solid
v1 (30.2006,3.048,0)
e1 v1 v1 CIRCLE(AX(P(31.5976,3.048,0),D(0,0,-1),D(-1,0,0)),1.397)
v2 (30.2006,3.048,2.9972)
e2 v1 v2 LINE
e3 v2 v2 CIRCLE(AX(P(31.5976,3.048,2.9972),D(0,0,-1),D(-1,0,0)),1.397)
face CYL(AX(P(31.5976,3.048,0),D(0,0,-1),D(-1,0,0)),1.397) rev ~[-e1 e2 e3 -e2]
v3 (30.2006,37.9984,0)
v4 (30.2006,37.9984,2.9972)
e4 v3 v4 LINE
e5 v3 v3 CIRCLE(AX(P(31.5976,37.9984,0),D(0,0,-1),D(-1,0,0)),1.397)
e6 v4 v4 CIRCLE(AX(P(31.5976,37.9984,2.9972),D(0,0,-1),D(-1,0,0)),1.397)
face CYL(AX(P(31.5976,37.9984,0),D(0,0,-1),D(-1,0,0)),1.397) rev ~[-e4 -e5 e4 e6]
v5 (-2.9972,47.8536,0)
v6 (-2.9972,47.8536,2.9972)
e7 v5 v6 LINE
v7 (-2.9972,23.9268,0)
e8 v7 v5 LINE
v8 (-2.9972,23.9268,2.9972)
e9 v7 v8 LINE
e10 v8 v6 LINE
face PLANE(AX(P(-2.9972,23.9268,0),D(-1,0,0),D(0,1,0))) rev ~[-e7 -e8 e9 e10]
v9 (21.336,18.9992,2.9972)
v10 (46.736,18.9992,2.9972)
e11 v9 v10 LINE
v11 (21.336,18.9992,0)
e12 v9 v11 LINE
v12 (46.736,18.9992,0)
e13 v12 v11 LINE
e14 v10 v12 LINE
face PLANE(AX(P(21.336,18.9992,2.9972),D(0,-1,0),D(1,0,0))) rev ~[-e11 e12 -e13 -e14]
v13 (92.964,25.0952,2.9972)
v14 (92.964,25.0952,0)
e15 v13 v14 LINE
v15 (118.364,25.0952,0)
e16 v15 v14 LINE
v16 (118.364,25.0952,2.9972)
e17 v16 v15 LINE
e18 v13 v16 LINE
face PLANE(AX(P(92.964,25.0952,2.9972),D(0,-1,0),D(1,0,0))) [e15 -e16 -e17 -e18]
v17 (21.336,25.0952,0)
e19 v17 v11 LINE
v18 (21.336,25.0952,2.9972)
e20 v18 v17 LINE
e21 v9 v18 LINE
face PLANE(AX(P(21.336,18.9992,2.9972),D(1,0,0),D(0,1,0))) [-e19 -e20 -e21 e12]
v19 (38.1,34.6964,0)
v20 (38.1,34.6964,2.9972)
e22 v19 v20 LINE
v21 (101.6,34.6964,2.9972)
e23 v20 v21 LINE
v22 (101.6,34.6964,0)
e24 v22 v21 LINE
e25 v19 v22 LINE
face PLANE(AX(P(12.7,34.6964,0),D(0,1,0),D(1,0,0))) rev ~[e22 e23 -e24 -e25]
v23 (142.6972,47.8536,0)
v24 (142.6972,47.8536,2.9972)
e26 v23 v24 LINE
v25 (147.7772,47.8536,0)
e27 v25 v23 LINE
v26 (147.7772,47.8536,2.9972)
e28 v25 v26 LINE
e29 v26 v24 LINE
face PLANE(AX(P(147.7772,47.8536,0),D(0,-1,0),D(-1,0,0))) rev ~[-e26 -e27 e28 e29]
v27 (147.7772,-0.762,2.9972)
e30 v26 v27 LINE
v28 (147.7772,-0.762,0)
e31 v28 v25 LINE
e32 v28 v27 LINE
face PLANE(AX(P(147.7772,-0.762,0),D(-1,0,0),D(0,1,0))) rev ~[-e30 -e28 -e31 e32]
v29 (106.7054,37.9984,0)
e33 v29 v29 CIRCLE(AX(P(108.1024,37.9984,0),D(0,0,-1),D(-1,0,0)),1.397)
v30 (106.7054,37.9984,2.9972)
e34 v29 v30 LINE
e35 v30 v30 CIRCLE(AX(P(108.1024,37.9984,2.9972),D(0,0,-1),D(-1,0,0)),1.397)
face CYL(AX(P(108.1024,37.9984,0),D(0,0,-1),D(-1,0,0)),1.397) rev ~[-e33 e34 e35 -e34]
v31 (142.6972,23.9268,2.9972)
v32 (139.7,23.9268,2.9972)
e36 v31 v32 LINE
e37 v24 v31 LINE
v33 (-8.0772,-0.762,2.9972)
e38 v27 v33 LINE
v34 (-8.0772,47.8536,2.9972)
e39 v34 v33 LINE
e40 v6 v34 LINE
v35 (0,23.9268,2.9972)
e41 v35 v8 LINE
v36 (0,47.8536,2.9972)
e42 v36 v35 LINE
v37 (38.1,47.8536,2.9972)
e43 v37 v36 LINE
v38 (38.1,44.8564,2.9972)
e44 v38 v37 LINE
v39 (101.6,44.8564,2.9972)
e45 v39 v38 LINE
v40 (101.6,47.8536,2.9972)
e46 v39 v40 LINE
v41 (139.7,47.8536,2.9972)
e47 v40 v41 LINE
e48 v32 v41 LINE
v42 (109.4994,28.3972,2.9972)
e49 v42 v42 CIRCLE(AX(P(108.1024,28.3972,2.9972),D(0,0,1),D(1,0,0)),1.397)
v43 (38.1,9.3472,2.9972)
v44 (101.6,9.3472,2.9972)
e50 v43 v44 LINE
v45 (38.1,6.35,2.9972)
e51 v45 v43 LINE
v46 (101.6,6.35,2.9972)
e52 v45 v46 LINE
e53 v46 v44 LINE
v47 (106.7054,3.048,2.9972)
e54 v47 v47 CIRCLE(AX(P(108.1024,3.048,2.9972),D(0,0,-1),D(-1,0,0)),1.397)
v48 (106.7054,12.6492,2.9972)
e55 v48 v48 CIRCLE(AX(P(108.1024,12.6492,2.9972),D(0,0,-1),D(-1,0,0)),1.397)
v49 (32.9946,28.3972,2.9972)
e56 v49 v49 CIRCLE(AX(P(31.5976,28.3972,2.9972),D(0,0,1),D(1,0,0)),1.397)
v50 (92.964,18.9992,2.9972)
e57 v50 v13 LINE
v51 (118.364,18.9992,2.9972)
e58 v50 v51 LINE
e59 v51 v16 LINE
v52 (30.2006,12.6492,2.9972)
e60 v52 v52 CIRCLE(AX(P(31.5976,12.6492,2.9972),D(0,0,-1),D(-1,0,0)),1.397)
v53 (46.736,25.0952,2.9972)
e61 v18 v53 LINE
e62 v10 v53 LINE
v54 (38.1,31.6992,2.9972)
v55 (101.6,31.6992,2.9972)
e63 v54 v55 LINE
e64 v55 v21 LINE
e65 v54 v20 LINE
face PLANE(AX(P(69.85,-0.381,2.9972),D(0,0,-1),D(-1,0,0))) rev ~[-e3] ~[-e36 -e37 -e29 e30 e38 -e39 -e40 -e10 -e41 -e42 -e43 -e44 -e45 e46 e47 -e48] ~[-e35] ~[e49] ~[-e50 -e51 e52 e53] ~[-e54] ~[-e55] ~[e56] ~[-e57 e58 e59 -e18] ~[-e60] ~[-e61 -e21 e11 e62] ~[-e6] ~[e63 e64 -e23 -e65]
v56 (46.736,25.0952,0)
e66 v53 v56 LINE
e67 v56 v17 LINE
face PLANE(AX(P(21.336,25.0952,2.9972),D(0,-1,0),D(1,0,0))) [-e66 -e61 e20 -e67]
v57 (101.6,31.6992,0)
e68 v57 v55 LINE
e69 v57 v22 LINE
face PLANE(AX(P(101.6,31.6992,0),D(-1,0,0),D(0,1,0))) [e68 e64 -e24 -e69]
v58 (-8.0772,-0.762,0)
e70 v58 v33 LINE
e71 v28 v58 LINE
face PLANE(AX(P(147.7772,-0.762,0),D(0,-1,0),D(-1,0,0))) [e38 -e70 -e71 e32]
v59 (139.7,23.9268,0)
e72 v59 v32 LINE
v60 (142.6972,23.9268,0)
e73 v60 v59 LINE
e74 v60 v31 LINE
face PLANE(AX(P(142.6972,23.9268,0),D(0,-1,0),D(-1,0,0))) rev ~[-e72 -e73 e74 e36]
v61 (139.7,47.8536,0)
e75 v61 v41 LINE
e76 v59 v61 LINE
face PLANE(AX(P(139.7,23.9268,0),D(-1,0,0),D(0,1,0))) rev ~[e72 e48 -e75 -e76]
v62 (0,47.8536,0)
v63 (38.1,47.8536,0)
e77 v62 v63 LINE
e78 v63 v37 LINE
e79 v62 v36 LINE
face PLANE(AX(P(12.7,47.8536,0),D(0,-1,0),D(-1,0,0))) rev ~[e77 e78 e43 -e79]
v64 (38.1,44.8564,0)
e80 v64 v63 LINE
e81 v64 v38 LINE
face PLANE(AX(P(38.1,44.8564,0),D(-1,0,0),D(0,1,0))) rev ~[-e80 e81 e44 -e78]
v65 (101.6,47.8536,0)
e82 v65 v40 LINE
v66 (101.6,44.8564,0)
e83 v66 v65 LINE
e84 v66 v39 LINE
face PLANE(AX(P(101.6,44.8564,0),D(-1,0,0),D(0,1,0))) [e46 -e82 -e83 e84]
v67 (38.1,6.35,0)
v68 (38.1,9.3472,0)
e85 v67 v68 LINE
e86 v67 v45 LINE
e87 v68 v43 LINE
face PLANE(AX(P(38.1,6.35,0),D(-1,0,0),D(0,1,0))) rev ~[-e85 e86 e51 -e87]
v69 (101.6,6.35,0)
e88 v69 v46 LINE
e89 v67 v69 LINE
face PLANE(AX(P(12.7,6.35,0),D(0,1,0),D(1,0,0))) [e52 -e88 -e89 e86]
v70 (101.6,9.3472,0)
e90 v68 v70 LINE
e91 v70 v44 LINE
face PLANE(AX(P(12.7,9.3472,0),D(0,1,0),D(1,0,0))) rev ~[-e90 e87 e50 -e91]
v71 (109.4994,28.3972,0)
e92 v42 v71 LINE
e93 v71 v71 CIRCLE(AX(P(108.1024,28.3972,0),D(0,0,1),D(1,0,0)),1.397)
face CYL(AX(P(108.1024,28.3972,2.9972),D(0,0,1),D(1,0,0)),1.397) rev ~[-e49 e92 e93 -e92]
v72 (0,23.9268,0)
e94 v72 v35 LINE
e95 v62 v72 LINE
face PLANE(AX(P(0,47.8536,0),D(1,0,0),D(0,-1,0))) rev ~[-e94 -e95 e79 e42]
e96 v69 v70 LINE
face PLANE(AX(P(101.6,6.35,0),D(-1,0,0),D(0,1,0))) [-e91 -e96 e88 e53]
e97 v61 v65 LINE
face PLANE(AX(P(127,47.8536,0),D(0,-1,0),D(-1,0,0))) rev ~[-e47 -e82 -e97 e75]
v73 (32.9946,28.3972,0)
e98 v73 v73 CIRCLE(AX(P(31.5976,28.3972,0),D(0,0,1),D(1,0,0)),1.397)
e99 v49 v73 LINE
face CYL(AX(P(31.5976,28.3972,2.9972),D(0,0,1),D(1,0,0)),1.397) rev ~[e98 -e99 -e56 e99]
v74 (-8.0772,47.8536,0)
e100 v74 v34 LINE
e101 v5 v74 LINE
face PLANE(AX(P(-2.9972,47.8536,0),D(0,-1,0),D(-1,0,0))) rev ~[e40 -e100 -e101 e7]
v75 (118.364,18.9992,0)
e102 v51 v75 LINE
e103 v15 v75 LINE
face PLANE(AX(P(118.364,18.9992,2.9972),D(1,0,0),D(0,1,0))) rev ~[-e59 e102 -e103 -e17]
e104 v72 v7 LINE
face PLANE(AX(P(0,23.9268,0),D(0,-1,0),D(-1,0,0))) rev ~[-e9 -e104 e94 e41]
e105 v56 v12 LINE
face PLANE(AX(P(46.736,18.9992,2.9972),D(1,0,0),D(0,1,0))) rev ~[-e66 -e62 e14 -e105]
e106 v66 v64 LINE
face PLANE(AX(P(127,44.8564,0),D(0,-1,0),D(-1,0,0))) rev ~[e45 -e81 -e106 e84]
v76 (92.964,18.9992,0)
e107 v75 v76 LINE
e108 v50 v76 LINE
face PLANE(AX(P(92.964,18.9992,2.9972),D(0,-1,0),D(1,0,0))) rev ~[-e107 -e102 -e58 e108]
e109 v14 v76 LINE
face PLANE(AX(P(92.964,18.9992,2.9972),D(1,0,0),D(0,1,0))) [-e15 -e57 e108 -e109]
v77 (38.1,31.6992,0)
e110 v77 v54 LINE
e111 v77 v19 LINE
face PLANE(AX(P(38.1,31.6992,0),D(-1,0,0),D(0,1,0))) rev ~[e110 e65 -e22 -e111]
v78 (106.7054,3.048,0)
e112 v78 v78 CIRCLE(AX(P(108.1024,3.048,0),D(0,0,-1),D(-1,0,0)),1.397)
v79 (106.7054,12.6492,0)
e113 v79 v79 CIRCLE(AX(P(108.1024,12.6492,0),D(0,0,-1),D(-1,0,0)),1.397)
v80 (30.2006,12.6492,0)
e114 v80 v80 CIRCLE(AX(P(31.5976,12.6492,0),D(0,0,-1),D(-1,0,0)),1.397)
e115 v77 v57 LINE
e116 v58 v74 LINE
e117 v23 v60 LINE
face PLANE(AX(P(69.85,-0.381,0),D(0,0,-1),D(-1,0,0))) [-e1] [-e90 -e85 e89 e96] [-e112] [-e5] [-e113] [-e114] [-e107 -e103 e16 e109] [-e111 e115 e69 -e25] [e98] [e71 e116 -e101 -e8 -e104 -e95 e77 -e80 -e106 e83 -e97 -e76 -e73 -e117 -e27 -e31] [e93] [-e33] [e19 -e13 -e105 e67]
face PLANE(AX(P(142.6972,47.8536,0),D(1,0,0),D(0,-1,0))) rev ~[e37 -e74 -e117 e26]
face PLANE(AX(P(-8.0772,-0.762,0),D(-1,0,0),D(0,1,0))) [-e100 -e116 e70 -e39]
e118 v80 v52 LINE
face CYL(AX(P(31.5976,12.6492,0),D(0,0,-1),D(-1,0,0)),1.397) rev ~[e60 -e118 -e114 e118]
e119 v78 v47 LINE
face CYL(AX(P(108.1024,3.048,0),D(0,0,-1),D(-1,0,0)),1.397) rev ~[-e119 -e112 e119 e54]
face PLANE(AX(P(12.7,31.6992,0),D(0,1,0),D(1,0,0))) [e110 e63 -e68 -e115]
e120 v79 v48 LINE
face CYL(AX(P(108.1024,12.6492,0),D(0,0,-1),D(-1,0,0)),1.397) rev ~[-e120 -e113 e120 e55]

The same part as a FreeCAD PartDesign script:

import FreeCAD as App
import Part
import Sketcher

V = App.Vector
Q = App.Units.Quantity


def add_polygon(sketch, points):
    """Adds a closed chain of lines whose ends are joined by coincident constraints."""
    first, n = sketch.GeometryCount, len(points)
    for a, b in zip(points, points[1:] + points[:1]):
        sketch.addGeometry(Part.LineSegment(App.Vector(*a, 0), App.Vector(*b, 0)), False)
    for i in range(n):
        sketch.addConstraint(Sketcher.Constraint("Coincident", first + i, 2, first + (i + 1) % n, 1))

doc = App.newDocument("Part")
params = doc.addObject("Spreadsheet::Sheet", "Params")
for row, (alias, value) in enumerate([
    ("sketch1_width", "0.2 in"),
    ("sketch1_width2", "0.5 in"),
    ("sketch1_width3", "4.5 in"),
    ("sketch1_width4", "0.118 in"),
    ("sketch1_height", "1.884 in"),
    ("pad1_length", "0.118 in"),
    ("sketch2_diameter", "0.11 in"),
    ("sketch3_width", "1 in"),
    ("sketch3_height", "0.118 in"),
    ("pad2_length", "0.118 in"),
    ("sketch4_height", "0.03 in"),
    ("sketch4_width", "6.136 in"),
    ("pad3_length", "0.118 in"),
    ("sketch5_diameter", "0.11 in"),
    ("sketch6_diameter", "0.11 in"),
    ("sketch7_width", "1 in"),
    ("sketch7_height", "0.24 in"),
], start=1):
    params.set(f"A{row}", alias)
    params.set(f"B{row}", "=" + value)
    params.setAlias(f"B{row}", alias)

body = doc.addObject("PartDesign::Body", "Body")

sketch1 = doc.addObject("Sketcher::SketchObject", "Sketch")
body.addObject(sketch1)
sketch1.AttachmentSupport = (doc.XY_Plane, [""])
sketch1.MapMode = "FlatFace"
add_polygon(sketch1, [(147.8, 0), (147.8, 47.9), (142.7, 47.9), (142.7, 23.9), (139.7, 23.9), (139.7, 47.9), (127, 47.9), (127, 44.9), (12.7, 44.9), (12.7, 47.9), (0, 47.9), (0, 23.9), (-3, 23.9), (-3, 47.9), (-8.1, 47.9), (-8.1, 0)])
add_polygon(sketch1, [(127, 6.3), (12.7, 6.3), (12.7, 9.3), (127, 9.3)])
add_polygon(sketch1, [(127, 31.7), (12.7, 31.7), (12.7, 34.7), (127, 34.7)])
sketch1.addConstraint([
    Sketcher.Constraint("Vertical", 0),
    Sketcher.Constraint("Horizontal", 1),
    Sketcher.Constraint("Vertical", 2),
    Sketcher.Constraint("Horizontal", 3),
    Sketcher.Constraint("Vertical", 4),
    Sketcher.Constraint("Horizontal", 5),
    Sketcher.Constraint("Vertical", 6),
    Sketcher.Constraint("Horizontal", 7),
    Sketcher.Constraint("Vertical", 8),
    Sketcher.Constraint("Horizontal", 9),
    Sketcher.Constraint("Vertical", 10),
    Sketcher.Constraint("Horizontal", 11),
    Sketcher.Constraint("Vertical", 12),
    Sketcher.Constraint("Horizontal", 13),
    Sketcher.Constraint("Vertical", 14),
    Sketcher.Constraint("Horizontal", 15),
    Sketcher.Constraint("Horizontal", 16),
    Sketcher.Constraint("Vertical", 17),
    Sketcher.Constraint("Horizontal", 18),
    Sketcher.Constraint("Vertical", 19),
    Sketcher.Constraint("Horizontal", 20),
    Sketcher.Constraint("Vertical", 21),
    Sketcher.Constraint("Horizontal", 22),
    Sketcher.Constraint("Vertical", 23),
    Sketcher.Constraint("PointOnObject", 9, 2, -2),
    Sketcher.Constraint("PointOnObject", 14, 2, -1),
    Sketcher.Constraint("Horizontal", 1, 2, 4, 2),
    Sketcher.Constraint("Horizontal", 5, 2, 8, 2),
    Sketcher.Constraint("Horizontal", 3, 2, 10, 2),
    Sketcher.Constraint("Horizontal", 9, 2, 12, 2),
    Sketcher.Constraint("Vertical", 8, 2, 16, 2),
    Sketcher.Constraint("Vertical", 6, 2, 18, 2),
    Sketcher.Constraint("Vertical", 17, 2, 20, 2),
    Sketcher.Constraint("Vertical", 19, 2, 22, 2),
    Sketcher.Constraint("Equal", 5, 9),
    Sketcher.Constraint("Equal", 3, 11),
    Sketcher.Constraint("Equal", 1, 13),
    Sketcher.Constraint("Equal", 11, 6),
    Sketcher.Constraint("Equal", 8, 17),
    Sketcher.Constraint("Equal", 19, 21),
    Sketcher.Constraint("DistanceX", 1, 2, 1, 1, Q("0.2 in")),
    Sketcher.Constraint("DistanceX", 5, 2, 5, 1, Q("0.5 in")),
    Sketcher.Constraint("DistanceX", 7, 2, 7, 1, Q("4.5 in")),
    Sketcher.Constraint("DistanceY", 21, 2, 7, 2, Q("0.4 in")),
    Sketcher.Constraint("DistanceX", 3, 2, 3, 1, Q("0.118 in")),
    Sketcher.Constraint("DistanceY", 0, 1, 0, 2, Q("1.884 in")),
    Sketcher.Constraint("DistanceY", 2, 2, 2, 1, Q("0.942 in")),
    Sketcher.Constraint("DistanceY", -1, 1, 16, 2, Q("0.25 in")),
])
sketch1.setExpression("Constraints[64]", "Params.sketch1_width")
sketch1.setExpression("Constraints[65]", "Params.sketch1_width2")
sketch1.setExpression("Constraints[66]", "Params.sketch1_width3")
sketch1.setExpression("Constraints[68]", "Params.sketch1_width4")
sketch1.setExpression("Constraints[69]", "Params.sketch1_height")
pad1 = doc.addObject("PartDesign::Pad", "Pad")
body.addObject(pad1)
pad1.Profile = sketch1
pad1.setExpression("Length", "Params.pad1_length")

sketch2 = doc.addObject("Sketcher::SketchObject", "Sketch001")
body.addObject(sketch2)
sketch2.AttachmentSupport = (doc.XY_Plane, [""])
sketch2.MapMode = "FlatFace"
sketch2.addGeometry([
    Part.Circle(V(108.1, 12.6, 0), V(0, 0, 1), 1.4),
    Part.Circle(V(31.6, 12.6, 0), V(0, 0, 1), 1.4),
    Part.Circle(V(108.1, 38, 0), V(0, 0, 1), 1.4),
    Part.Circle(V(31.6, 38, 0), V(0, 0, 1), 1.4),
], False)
sketch2.addConstraint([
    Sketcher.Constraint("Equal", 0, 1),
    Sketcher.Constraint("Equal", 1, 2),
    Sketcher.Constraint("Equal", 2, 3),
    Sketcher.Constraint("Horizontal", 0, 3, 1, 3),
    Sketcher.Constraint("Horizontal", 2, 3, 3, 3),
    Sketcher.Constraint("Vertical", 0, 3, 2, 3),
    Sketcher.Constraint("Vertical", 1, 3, 3, 3),
    Sketcher.Constraint("Diameter", 0, Q("0.11 in")),
    Sketcher.Constraint("DistanceX", -1, 1, 0, 3, Q("4.256 in")),
    Sketcher.Constraint("DistanceY", -1, 1, 0, 3, Q("0.498 in")),
    Sketcher.Constraint("DistanceX", -1, 1, 1, 3, Q("1.244 in")),
    Sketcher.Constraint("DistanceY", -1, 1, 2, 3, Q("1.496 in")),
])
sketch2.setExpression("Constraints[7]", "Params.sketch2_diameter")
pocket1 = doc.addObject("PartDesign::Pocket", "Pocket")
body.addObject(pocket1)
pocket1.Profile = sketch2
pocket1.Type = "ThroughAll"
pocket1.Reversed = True

sketch3 = doc.addObject("Sketcher::SketchObject", "Sketch002")
body.addObject(sketch3)
sketch3.AttachmentSupport = (doc.XY_Plane, [""])
sketch3.MapMode = "FlatFace"
add_polygon(sketch3, [(127, 47.9), (127, 44.9), (101.6, 44.9), (101.6, 47.9)])
add_polygon(sketch3, [(127, 34.7), (127, 31.7), (101.6, 31.7), (101.6, 34.7)])
add_polygon(sketch3, [(127, 9.3), (127, 6.3), (101.6, 6.3), (101.6, 9.3)])
add_polygon(sketch3, [(38.1, 9.3), (38.1, 6.3), (12.7, 6.3), (12.7, 9.3)])
add_polygon(sketch3, [(38.1, 34.7), (38.1, 31.7), (12.7, 31.7), (12.7, 34.7)])
add_polygon(sketch3, [(38.1, 47.9), (38.1, 44.9), (12.7, 44.9), (12.7, 47.9)])
sketch3.addConstraint([
    Sketcher.Constraint("Vertical", 0),
    Sketcher.Constraint("Horizontal", 1),
    Sketcher.Constraint("Vertical", 2),
    Sketcher.Constraint("Horizontal", 3),
    Sketcher.Constraint("Vertical", 4),
    Sketcher.Constraint("Horizontal", 5),
    Sketcher.Constraint("Vertical", 6),
    Sketcher.Constraint("Horizontal", 7),
    Sketcher.Constraint("Vertical", 8),
    Sketcher.Constraint("Horizontal", 9),
    Sketcher.Constraint("Vertical", 10),
    Sketcher.Constraint("Horizontal", 11),
    Sketcher.Constraint("Vertical", 12),
    Sketcher.Constraint("Horizontal", 13),
    Sketcher.Constraint("Vertical", 14),
    Sketcher.Constraint("Horizontal", 15),
    Sketcher.Constraint("Vertical", 16),
    Sketcher.Constraint("Horizontal", 17),
    Sketcher.Constraint("Vertical", 18),
    Sketcher.Constraint("Horizontal", 19),
    Sketcher.Constraint("Vertical", 20),
    Sketcher.Constraint("Horizontal", 21),
    Sketcher.Constraint("Vertical", 22),
    Sketcher.Constraint("Horizontal", 23),
    Sketcher.Constraint("Horizontal", 9, 2, 12, 2),
    Sketcher.Constraint("Horizontal", 11, 2, 14, 2),
    Sketcher.Constraint("Horizontal", 5, 2, 16, 2),
    Sketcher.Constraint("Horizontal", 7, 2, 18, 2),
    Sketcher.Constraint("Horizontal", 1, 2, 20, 2),
    Sketcher.Constraint("Horizontal", 3, 2, 22, 2),
    Sketcher.Constraint("Vertical", 3, 2, 4, 2),
    Sketcher.Constraint("Vertical", 2, 2, 5, 2),
    Sketcher.Constraint("Vertical", 7, 2, 8, 2),
    Sketcher.Constraint("Vertical", 6, 2, 9, 2),
    Sketcher.Constraint("Vertical", 15, 2, 16, 2),
    Sketcher.Constraint("Vertical", 14, 2, 17, 2),
    Sketcher.Constraint("Vertical", 19, 2, 20, 2),
    Sketcher.Constraint("Vertical", 18, 2, 21, 2),
    Sketcher.Constraint("Equal", 11, 13),
    Sketcher.Constraint("Equal", 2, 4),
    Sketcher.Constraint("Equal", 6, 8),
    Sketcher.Constraint("DistanceX", 1, 2, 1, 1, Q("1 in")),
    Sketcher.Constraint("DistanceX", -1, 1, 0, 2, Q("5 in")),
    Sketcher.Constraint("DistanceX", -1, 1, 12, 2, Q("1.5 in")),
    Sketcher.Constraint("DistanceY", 6, 2, 1, 2, Q("0.4 in")),
    Sketcher.Constraint("DistanceY", 0, 2, 0, 1, Q("0.118 in")),
    Sketcher.Constraint("DistanceY", -1, 1, 8, 2, Q("0.25 in")),
    Sketcher.Constraint("DistanceY", 10, 2, 5, 2, Q("0.88 in")),
])
sketch3.setExpression("Constraints[65]", "Params.sketch3_width")
sketch3.setExpression("Constraints[69]", "Params.sketch3_height")
pad2 = doc.addObject("PartDesign::Pad", "Pad001")
body.addObject(pad2)
pad2.Profile = sketch3
pad2.setExpression("Length", "Params.pad2_length")

sketch4 = doc.addObject("Sketcher::SketchObject", "Sketch003")
body.addObject(sketch4)
sketch4.AttachmentSupport = (doc.XY_Plane, [""])
sketch4.MapMode = "FlatFace"
add_polygon(sketch4, [(147.8, 0), (147.8, -0.8), (-8.1, -0.8), (-8.1, 0)])
sketch4.addConstraint([
    Sketcher.Constraint("Vertical", 0),
    Sketcher.Constraint("Horizontal", 1),
    Sketcher.Constraint("Vertical", 2),
    Sketcher.Constraint("Horizontal", 3),
    Sketcher.Constraint("PointOnObject", 2, 2, -1),
    Sketcher.Constraint("DistanceY", 0, 2, 0, 1, Q("0.03 in")),
    Sketcher.Constraint("DistanceX", 1, 2, 1, 1, Q("6.136 in")),
    Sketcher.Constraint("DistanceX", -1, 1, 0, 2, Q("5.818 in")),
])
sketch4.setExpression("Constraints[9]", "Params.sketch4_height")
sketch4.setExpression("Constraints[10]", "Params.sketch4_width")
pad3 = doc.addObject("PartDesign::Pad", "Pad002")
body.addObject(pad3)
pad3.Profile = sketch4
pad3.setExpression("Length", "Params.pad3_length")

sketch5 = doc.addObject("Sketcher::SketchObject", "Sketch004")
body.addObject(sketch5)
sketch5.AttachmentSupport = (doc.XY_Plane, [""])
sketch5.MapMode = "FlatFace"
sketch5.AttachmentOffset = App.Placement(V(0, 0, 0.118 * 25.4), App.Rotation())
sketch5.addGeometry([
    Part.Circle(V(31.6, 28.4, 0), V(0, 0, 1), 1.4),
    Part.Circle(V(108.1, 28.4, 0), V(0, 0, 1), 1.4),
], False)
sketch5.addConstraint([
    Sketcher.Constraint("Equal", 0, 1),
    Sketcher.Constraint("Horizontal", 0, 3, 1, 3),
    Sketcher.Constraint("Diameter", 0, Q("0.11 in")),
    Sketcher.Constraint("DistanceX", -1, 1, 0, 3, Q("1.244 in")),
    Sketcher.Constraint("DistanceY", -1, 1, 0, 3, Q("1.118 in")),
    Sketcher.Constraint("DistanceX", -1, 1, 1, 3, Q("4.256 in")),
])
sketch5.setExpression("Constraints[2]", "Params.sketch5_diameter")
pocket2 = doc.addObject("PartDesign::Pocket", "Pocket001")
body.addObject(pocket2)
pocket2.Profile = sketch5
pocket2.Type = "ThroughAll"

sketch6 = doc.addObject("Sketcher::SketchObject", "Sketch005")
body.addObject(sketch6)
sketch6.AttachmentSupport = (doc.XY_Plane, [""])
sketch6.MapMode = "FlatFace"
sketch6.addGeometry([
    Part.Circle(V(108.1, 3, 0), V(0, 0, 1), 1.4),
    Part.Circle(V(31.6, 3, 0), V(0, 0, 1), 1.4),
], False)
sketch6.addConstraint([
    Sketcher.Constraint("Equal", 0, 1),
    Sketcher.Constraint("Horizontal", 0, 3, 1, 3),
    Sketcher.Constraint("Diameter", 0, Q("0.11 in")),
    Sketcher.Constraint("DistanceY", -1, 1, 0, 3, Q("0.12 in")),
    Sketcher.Constraint("DistanceX", -1, 1, 0, 3, Q("4.256 in")),
    Sketcher.Constraint("DistanceX", -1, 1, 1, 3, Q("1.244 in")),
])
sketch6.setExpression("Constraints[2]", "Params.sketch6_diameter")
pocket3 = doc.addObject("PartDesign::Pocket", "Pocket002")
body.addObject(pocket3)
pocket3.Profile = sketch6
pocket3.Type = "ThroughAll"
pocket3.Reversed = True

sketch7 = doc.addObject("Sketcher::SketchObject", "Sketch006")
body.addObject(sketch7)
sketch7.AttachmentSupport = (doc.XY_Plane, [""])
sketch7.MapMode = "FlatFace"
sketch7.AttachmentOffset = App.Placement(V(0, 0, 0.118 * 25.4), App.Rotation())
add_polygon(sketch7, [(21, 25), (21, 19), (47, 19), (47, 25)])
add_polygon(sketch7, [(93, 25), (93, 19), (118, 19), (118, 25)])
sketch7.addConstraint([
    Sketcher.Constraint("Vertical", 0),
    Sketcher.Constraint("Horizontal", 1),
    Sketcher.Constraint("Vertical", 2),
    Sketcher.Constraint("Horizontal", 3),
    Sketcher.Constraint("Vertical", 4),
    Sketcher.Constraint("Horizontal", 5),
    Sketcher.Constraint("Vertical", 6),
    Sketcher.Constraint("Horizontal", 7),
    Sketcher.Constraint("Horizontal", 1, 2, 4, 2),
    Sketcher.Constraint("Horizontal", 3, 2, 6, 2),
    Sketcher.Constraint("Equal", 3, 5),
    Sketcher.Constraint("DistanceX", 1, 1, 1, 2, Q("1 in")),
    Sketcher.Constraint("DistanceY", 0, 2, 0, 1, Q("0.24 in")),
    Sketcher.Constraint("DistanceX", -1, 1, 0, 2, Q("0.84 in")),
    Sketcher.Constraint("DistanceX", -1, 1, 4, 2, Q("3.66 in")),
    Sketcher.Constraint("DistanceY", -1, 1, 0, 2, Q("0.748 in")),
])
sketch7.setExpression("Constraints[19]", "Params.sketch7_width")
sketch7.setExpression("Constraints[20]", "Params.sketch7_height")
pocket4 = doc.addObject("PartDesign::Pocket", "Pocket003")
body.addObject(pocket4)
pocket4.Profile = sketch7
pocket4.Type = "ThroughAll"

doc.recompute()
